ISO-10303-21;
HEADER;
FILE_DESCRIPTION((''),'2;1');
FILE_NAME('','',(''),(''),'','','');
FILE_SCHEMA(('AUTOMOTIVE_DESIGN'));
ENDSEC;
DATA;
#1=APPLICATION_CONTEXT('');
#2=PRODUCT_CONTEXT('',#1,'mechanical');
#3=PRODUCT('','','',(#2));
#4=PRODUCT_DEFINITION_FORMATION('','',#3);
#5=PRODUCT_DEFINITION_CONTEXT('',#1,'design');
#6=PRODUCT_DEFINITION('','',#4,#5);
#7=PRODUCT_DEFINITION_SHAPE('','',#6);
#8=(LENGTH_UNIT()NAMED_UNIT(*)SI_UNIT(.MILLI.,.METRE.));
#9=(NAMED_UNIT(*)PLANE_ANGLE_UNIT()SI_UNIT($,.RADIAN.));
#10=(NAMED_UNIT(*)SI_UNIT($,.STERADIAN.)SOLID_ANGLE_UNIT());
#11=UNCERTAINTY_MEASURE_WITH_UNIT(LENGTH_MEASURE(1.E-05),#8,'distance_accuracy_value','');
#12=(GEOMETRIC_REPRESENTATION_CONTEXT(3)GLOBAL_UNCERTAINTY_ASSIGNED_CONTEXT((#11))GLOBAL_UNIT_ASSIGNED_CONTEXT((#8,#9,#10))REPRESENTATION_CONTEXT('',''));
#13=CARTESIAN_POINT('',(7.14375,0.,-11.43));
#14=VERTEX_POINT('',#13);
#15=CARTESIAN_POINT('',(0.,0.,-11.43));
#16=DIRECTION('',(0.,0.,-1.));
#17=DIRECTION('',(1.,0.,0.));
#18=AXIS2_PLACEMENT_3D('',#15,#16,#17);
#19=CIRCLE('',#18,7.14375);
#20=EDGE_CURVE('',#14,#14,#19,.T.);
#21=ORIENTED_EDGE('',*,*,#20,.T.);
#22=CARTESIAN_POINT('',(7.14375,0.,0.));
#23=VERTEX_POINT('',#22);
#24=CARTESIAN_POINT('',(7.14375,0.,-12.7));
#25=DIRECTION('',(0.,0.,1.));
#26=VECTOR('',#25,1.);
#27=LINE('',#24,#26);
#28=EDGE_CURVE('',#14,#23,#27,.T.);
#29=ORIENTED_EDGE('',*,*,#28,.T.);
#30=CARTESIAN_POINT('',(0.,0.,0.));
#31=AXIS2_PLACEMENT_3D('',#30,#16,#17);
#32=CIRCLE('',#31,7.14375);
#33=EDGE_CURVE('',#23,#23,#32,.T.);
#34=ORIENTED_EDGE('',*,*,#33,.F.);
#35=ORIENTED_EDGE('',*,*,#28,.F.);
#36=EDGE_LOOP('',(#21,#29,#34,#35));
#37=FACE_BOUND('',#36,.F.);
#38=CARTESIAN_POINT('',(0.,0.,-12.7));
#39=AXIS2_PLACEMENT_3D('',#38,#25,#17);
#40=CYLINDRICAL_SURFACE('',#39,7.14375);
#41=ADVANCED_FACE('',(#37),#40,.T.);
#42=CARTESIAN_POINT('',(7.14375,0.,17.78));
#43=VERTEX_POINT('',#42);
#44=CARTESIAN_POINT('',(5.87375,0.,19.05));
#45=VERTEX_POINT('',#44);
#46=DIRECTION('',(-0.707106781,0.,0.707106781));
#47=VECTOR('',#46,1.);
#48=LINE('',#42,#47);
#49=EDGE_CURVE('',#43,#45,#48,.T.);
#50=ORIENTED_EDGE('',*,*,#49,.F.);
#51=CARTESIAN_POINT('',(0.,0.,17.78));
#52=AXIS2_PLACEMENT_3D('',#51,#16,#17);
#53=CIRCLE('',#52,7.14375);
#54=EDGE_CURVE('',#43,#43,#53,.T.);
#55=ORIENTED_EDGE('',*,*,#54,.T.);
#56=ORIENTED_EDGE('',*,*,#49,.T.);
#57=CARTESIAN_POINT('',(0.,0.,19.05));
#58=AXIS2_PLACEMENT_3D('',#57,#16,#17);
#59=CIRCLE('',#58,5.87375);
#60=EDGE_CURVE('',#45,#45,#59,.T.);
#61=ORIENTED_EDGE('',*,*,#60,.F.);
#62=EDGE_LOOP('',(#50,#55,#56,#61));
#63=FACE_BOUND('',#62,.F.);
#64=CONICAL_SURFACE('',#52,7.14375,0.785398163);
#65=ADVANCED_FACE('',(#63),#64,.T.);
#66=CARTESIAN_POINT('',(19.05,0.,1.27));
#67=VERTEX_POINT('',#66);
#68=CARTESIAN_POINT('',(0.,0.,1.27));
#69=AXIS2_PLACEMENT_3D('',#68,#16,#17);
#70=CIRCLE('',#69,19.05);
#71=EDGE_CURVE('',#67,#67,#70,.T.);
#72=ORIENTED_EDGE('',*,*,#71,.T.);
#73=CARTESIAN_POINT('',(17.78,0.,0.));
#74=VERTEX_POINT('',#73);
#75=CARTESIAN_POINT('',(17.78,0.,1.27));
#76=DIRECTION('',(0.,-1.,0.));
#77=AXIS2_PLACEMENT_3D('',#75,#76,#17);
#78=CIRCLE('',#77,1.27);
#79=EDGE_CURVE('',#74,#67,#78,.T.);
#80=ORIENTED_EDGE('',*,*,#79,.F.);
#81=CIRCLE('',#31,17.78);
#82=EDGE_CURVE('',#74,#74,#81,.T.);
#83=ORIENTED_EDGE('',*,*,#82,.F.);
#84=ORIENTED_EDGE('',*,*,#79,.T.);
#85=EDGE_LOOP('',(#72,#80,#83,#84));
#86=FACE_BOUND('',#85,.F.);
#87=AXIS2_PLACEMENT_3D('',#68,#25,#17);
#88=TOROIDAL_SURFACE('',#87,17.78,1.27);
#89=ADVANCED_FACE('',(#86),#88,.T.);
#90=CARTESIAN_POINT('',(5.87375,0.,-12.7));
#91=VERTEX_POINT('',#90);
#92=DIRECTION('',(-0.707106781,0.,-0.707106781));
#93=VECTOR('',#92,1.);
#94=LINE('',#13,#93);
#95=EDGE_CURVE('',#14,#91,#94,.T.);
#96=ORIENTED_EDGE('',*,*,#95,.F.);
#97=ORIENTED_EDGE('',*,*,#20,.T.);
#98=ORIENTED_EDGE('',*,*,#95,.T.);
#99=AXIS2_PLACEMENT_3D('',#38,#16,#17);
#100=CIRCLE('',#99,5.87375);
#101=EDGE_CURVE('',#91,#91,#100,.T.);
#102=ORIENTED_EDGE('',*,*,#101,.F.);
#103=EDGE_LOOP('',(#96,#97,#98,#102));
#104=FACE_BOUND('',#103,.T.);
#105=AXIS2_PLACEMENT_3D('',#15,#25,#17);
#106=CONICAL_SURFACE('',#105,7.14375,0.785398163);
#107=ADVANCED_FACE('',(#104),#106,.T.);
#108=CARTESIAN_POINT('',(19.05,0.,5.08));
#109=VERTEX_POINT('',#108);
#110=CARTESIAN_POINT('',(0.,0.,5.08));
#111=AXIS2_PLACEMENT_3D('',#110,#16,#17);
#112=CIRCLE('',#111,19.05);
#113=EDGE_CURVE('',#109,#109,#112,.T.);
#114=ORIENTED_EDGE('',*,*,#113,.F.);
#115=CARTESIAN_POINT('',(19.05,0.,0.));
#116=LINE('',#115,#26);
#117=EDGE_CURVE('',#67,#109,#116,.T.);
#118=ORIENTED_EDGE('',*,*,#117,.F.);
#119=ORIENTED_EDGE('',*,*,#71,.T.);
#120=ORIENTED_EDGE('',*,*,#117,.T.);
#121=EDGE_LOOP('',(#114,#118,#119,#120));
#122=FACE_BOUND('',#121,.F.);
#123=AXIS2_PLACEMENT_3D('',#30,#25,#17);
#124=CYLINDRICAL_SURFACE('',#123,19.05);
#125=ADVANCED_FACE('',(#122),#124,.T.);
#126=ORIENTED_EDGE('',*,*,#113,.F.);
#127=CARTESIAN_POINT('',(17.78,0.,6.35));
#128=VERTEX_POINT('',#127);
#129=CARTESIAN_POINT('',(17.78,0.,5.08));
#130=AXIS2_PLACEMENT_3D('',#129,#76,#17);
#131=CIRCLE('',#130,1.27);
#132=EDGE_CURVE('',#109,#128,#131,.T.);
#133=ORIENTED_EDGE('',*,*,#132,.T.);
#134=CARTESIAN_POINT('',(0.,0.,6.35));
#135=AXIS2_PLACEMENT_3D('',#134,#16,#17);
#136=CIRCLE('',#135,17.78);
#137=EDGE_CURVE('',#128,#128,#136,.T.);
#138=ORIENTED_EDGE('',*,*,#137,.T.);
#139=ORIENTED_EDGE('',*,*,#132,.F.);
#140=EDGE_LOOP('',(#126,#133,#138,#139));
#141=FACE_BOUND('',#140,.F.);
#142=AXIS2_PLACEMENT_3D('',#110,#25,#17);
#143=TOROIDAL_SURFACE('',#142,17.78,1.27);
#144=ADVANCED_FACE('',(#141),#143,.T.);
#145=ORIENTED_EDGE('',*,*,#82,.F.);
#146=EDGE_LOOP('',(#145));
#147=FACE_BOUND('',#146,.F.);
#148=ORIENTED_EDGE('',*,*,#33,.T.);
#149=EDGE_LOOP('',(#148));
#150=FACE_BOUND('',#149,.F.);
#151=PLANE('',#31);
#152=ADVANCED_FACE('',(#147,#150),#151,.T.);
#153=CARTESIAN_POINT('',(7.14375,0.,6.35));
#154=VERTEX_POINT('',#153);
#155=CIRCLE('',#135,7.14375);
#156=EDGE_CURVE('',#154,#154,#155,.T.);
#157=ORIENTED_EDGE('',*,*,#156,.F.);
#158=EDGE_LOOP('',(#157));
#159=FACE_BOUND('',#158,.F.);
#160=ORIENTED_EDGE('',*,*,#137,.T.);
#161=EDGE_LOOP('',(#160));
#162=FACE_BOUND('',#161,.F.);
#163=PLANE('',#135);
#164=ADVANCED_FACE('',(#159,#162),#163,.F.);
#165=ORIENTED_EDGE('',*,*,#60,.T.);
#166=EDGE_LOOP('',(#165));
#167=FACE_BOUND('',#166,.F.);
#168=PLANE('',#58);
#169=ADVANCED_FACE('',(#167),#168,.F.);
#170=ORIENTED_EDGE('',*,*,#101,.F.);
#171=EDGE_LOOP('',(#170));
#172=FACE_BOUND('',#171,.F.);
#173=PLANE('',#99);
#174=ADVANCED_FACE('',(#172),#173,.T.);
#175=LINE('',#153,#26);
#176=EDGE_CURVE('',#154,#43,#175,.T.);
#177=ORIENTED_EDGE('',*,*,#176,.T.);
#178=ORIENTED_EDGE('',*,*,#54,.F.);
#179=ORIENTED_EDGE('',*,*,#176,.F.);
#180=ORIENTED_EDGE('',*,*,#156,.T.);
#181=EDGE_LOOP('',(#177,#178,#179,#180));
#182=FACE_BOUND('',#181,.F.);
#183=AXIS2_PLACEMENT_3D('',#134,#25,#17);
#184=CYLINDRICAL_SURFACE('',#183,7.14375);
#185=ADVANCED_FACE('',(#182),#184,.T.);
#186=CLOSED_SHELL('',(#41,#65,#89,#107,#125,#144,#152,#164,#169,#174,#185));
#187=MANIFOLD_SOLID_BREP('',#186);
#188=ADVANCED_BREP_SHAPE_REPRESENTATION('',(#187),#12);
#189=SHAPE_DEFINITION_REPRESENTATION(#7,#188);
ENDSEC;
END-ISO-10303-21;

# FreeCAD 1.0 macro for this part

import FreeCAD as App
import Part
import Sketcher

V = App.Vector
Q = App.Units.Quantity


def edges_at(feature, points):
    """Names of the edges that pass closest to the given points."""
    edges = feature.Shape.Edges
    near = lambda p: min(range(len(edges)), key=lambda i: edges[i].distToShape(Part.Vertex(*p))[0])
    return sorted({f"Edge{near(p) + 1}" for p in points})


def add_polygon(sketch, points):
    """Adds a closed chain of lines whose ends are joined by coincident constraints."""
    first, n = sketch.GeometryCount, len(points)
    for a, b in zip(points, points[1:] + points[:1]):
        sketch.addGeometry(Part.LineSegment(App.Vector(*a, 0), App.Vector(*b, 0)), False)
    for i in range(n):
        sketch.addConstraint(Sketcher.Constraint("Coincident", first + i, 2, first + (i + 1) % n, 1))

doc = App.newDocument("Part")
body = doc.addObject("PartDesign::Body", "Body")

# Sketch on XZ plane
sketch1 = body.newObject("Sketcher::SketchObject", "Sketch")
sketch1.AttachmentSupport = (doc.getObject("XZ_Plane"), [""])
sketch1.MapMode = "FlatFace"
add_polygon(sketch1, [(7, 19), (0, 19), (0, -13), (7, -13), (7, 0), (19, 0), (19, 6), (7, 6)])  # lines 0-7
sketch1.addConstraint([
    Sketcher.Constraint("Horizontal", 0),
    Sketcher.Constraint("Vertical", 1),
    Sketcher.Constraint("Horizontal", 2),
    Sketcher.Constraint("Vertical", 3),
    Sketcher.Constraint("Horizontal", 4),
    Sketcher.Constraint("Vertical", 5),
    Sketcher.Constraint("Horizontal", 6),
    Sketcher.Constraint("Vertical", 7),
    Sketcher.Constraint("PointOnObject", 0, 2, -2),
    Sketcher.Constraint("PointOnObject", 3, 2, -1),
    Sketcher.Constraint("Vertical", 3, 2, 6, 2),
    Sketcher.Constraint("Equal", 3, 7),
    Sketcher.Constraint("DistanceY", 3, 1, 3, 2, Q("0.5 in")),
    Sketcher.Constraint("DistanceY", 1, 2, 1, 1, Q("1.25 in")),
    Sketcher.Constraint("DistanceX", 0, 2, 0, 1, Q("0.28125 in")),
    Sketcher.Constraint("DistanceX", 4, 1, 4, 2, Q("0.46875 in")),
])
revolution = body.newObject("PartDesign::Revolution", "Revolution")
revolution.Profile = sketch1
revolution.ReferenceAxis = (sketch1, ["V_Axis"])
revolution.Angle = 360
doc.recompute()

fillet = body.newObject("PartDesign::Fillet", "Fillet")
fillet.Base = (revolution, edges_at(revolution, [(-19.05, 0, 6.35), (-19.05, 0, 0)]))
fillet.Radius = Q("0.05 in")
doc.recompute()

chamfer = body.newObject("PartDesign::Chamfer", "Chamfer")
chamfer.Base = (fillet, edges_at(fillet, [(-7.144, 0, 19.05), (-7.144, 0, -12.7)]))
chamfer.Size = Q("0.05 in")

doc.recompute()
